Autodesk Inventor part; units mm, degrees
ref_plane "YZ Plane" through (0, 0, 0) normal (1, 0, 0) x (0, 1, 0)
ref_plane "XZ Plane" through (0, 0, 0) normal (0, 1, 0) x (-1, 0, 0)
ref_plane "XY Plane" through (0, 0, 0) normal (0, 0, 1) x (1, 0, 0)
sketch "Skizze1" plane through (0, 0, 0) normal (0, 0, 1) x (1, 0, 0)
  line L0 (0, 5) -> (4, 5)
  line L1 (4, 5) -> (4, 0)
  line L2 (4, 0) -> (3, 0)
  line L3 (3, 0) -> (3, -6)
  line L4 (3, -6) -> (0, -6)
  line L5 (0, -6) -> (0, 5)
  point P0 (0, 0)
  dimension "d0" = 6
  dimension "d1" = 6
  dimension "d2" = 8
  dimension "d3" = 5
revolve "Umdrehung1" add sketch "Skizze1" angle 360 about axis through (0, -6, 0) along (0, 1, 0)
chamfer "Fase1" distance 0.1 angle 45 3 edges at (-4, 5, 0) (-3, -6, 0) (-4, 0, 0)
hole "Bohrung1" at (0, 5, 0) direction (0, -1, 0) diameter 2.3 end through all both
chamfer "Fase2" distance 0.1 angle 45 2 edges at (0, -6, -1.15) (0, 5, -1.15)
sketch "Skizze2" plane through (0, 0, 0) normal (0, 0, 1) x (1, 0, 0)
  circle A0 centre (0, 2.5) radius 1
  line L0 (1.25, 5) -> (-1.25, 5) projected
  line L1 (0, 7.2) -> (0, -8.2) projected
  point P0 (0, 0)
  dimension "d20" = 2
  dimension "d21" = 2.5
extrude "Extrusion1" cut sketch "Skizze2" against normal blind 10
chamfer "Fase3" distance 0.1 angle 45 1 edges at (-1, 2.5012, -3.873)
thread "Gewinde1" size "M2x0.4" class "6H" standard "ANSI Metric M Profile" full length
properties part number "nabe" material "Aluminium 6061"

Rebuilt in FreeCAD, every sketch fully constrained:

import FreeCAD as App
import Part
import Sketcher

V = App.Vector
Q = App.Units.Quantity


def edges_at(feature, points):
    """Names of the edges that pass closest to the given points."""
    edges = feature.Shape.Edges
    near = lambda p: min(range(len(edges)), key=lambda i: edges[i].distToShape(Part.Vertex(*p))[0])
    return sorted({f"Edge{near(p) + 1}" for p in points})

doc = App.newDocument("Part")
body = doc.addObject("PartDesign::Body", "Body")

# Sketch on XY plane
sketch1 = body.newObject("Sketcher::SketchObject", "Sketch")
sketch1.AttachmentSupport = (doc.getObject("XY_Plane"), [""])
sketch1.MapMode = "FlatFace"
sketch1.addGeometry([
    Part.LineSegment(V(4, 5, 0), V(0, 5, 0)),  # 0
    Part.LineSegment(V(0, 5, 0), V(0, -6, 0)),  # 1
    Part.LineSegment(V(0, -6, 0), V(3, -6, 0)),  # 2
    Part.LineSegment(V(3, -6, 0), V(3, 0, 0)),  # 3
    Part.LineSegment(V(3, 0, 0), V(4, 0, 0)),  # 4
    Part.LineSegment(V(4, 0, 0), V(4, 5, 0)),  # 5
], False)
sketch1.addConstraint([
    Sketcher.Constraint("Coincident", 0, 2, 1, 1),
    Sketcher.Constraint("Coincident", 1, 2, 2, 1),
    Sketcher.Constraint("Coincident", 2, 2, 3, 1),
    Sketcher.Constraint("Coincident", 3, 2, 4, 1),
    Sketcher.Constraint("Coincident", 4, 2, 5, 1),
    Sketcher.Constraint("Coincident", 5, 2, 0, 1),
    Sketcher.Constraint("Horizontal", 0),
    Sketcher.Constraint("Vertical", 1),
    Sketcher.Constraint("Horizontal", 2),
    Sketcher.Constraint("Vertical", 3),
    Sketcher.Constraint("Horizontal", 4),
    Sketcher.Constraint("Vertical", 5),
    Sketcher.Constraint("PointOnObject", 0, 2, -2),
    Sketcher.Constraint("PointOnObject", 3, 2, -1),
    Sketcher.Constraint("DistanceY", 3, 1, 3, 2, Q("6 mm")),
    Sketcher.Constraint("DistanceY", 5, 1, 5, 2, Q("5 mm")),
    Sketcher.Constraint("DistanceX", 0, 2, 0, 1, Q("4 mm")),
    Sketcher.Constraint("DistanceX", 2, 1, 2, 2, Q("3 mm")),
])
revolution = body.newObject("PartDesign::Revolution", "Revolution")
revolution.Profile = sketch1
revolution.ReferenceAxis = (sketch1, ["V_Axis"])
revolution.Angle = 360
doc.recompute()

chamfer = body.newObject("PartDesign::Chamfer", "Chamfer")
chamfer.Base = (revolution, edges_at(revolution, [(-4, 5, 0), (-3, -6, 0), (-4, 0, 0)]))
chamfer.Size = 0.1

# Sketch on XZ plane
sketch2 = body.newObject("Sketcher::SketchObject", "Sketch001")
sketch2.AttachmentSupport = (doc.getObject("XZ_Plane"), [""])
sketch2.MapMode = "FlatFace"
sketch2.AttachmentOffset = App.Placement(V(0, 0, -5), App.Rotation())
sketch2.addGeometry(Part.Circle(V(0, 0, 0), V(0, 0, 1), 1.15), False)
sketch2.addConstraint([
    Sketcher.Constraint("Coincident", 0, 3, -1, 1),
    Sketcher.Constraint("Diameter", 0, Q("2.3 mm")),
])
doc.recompute()
hole = body.newObject("PartDesign::Hole", "Hole")
hole.Profile = sketch2
hole.ThreadType = "None"
hole.Diameter = 2.3
hole.DepthType = "ThroughAll"
hole.Reversed = True
doc.recompute()

chamfer2 = body.newObject("PartDesign::Chamfer", "Chamfer001")
chamfer2.Base = (hole, edges_at(hole, [(0, -6, -1.15), (0, 5, -1.15)]))
chamfer2.Size = 0.1

# Sketch on XY plane
sketch3 = body.newObject("Sketcher::SketchObject", "Sketch002")
sketch3.AttachmentSupport = (doc.getObject("XY_Plane"), [""])
sketch3.MapMode = "FlatFace"
sketch3.addGeometry(Part.Circle(V(0, 2.5, 0), V(0, 0, 1), 1), False)
sketch3.addConstraint([
    Sketcher.Constraint("PointOnObject", 0, 3, -2),
    Sketcher.Constraint("Diameter", 0, Q("2 mm")),
    Sketcher.Constraint("DistanceY", -1, 1, 0, 3, Q("2.5 mm")),
])
pocket1 = body.newObject("PartDesign::Pocket", "Pocket")
pocket1.Profile = sketch3
pocket1.Length = 10
doc.recompute()

chamfer3 = body.newObject("PartDesign::Chamfer", "Chamfer002")
chamfer3.Base = (pocket1, edges_at(pocket1, [(-1, 2.501, -3.873)]))
chamfer3.Size = 0.1

doc.recompute()
